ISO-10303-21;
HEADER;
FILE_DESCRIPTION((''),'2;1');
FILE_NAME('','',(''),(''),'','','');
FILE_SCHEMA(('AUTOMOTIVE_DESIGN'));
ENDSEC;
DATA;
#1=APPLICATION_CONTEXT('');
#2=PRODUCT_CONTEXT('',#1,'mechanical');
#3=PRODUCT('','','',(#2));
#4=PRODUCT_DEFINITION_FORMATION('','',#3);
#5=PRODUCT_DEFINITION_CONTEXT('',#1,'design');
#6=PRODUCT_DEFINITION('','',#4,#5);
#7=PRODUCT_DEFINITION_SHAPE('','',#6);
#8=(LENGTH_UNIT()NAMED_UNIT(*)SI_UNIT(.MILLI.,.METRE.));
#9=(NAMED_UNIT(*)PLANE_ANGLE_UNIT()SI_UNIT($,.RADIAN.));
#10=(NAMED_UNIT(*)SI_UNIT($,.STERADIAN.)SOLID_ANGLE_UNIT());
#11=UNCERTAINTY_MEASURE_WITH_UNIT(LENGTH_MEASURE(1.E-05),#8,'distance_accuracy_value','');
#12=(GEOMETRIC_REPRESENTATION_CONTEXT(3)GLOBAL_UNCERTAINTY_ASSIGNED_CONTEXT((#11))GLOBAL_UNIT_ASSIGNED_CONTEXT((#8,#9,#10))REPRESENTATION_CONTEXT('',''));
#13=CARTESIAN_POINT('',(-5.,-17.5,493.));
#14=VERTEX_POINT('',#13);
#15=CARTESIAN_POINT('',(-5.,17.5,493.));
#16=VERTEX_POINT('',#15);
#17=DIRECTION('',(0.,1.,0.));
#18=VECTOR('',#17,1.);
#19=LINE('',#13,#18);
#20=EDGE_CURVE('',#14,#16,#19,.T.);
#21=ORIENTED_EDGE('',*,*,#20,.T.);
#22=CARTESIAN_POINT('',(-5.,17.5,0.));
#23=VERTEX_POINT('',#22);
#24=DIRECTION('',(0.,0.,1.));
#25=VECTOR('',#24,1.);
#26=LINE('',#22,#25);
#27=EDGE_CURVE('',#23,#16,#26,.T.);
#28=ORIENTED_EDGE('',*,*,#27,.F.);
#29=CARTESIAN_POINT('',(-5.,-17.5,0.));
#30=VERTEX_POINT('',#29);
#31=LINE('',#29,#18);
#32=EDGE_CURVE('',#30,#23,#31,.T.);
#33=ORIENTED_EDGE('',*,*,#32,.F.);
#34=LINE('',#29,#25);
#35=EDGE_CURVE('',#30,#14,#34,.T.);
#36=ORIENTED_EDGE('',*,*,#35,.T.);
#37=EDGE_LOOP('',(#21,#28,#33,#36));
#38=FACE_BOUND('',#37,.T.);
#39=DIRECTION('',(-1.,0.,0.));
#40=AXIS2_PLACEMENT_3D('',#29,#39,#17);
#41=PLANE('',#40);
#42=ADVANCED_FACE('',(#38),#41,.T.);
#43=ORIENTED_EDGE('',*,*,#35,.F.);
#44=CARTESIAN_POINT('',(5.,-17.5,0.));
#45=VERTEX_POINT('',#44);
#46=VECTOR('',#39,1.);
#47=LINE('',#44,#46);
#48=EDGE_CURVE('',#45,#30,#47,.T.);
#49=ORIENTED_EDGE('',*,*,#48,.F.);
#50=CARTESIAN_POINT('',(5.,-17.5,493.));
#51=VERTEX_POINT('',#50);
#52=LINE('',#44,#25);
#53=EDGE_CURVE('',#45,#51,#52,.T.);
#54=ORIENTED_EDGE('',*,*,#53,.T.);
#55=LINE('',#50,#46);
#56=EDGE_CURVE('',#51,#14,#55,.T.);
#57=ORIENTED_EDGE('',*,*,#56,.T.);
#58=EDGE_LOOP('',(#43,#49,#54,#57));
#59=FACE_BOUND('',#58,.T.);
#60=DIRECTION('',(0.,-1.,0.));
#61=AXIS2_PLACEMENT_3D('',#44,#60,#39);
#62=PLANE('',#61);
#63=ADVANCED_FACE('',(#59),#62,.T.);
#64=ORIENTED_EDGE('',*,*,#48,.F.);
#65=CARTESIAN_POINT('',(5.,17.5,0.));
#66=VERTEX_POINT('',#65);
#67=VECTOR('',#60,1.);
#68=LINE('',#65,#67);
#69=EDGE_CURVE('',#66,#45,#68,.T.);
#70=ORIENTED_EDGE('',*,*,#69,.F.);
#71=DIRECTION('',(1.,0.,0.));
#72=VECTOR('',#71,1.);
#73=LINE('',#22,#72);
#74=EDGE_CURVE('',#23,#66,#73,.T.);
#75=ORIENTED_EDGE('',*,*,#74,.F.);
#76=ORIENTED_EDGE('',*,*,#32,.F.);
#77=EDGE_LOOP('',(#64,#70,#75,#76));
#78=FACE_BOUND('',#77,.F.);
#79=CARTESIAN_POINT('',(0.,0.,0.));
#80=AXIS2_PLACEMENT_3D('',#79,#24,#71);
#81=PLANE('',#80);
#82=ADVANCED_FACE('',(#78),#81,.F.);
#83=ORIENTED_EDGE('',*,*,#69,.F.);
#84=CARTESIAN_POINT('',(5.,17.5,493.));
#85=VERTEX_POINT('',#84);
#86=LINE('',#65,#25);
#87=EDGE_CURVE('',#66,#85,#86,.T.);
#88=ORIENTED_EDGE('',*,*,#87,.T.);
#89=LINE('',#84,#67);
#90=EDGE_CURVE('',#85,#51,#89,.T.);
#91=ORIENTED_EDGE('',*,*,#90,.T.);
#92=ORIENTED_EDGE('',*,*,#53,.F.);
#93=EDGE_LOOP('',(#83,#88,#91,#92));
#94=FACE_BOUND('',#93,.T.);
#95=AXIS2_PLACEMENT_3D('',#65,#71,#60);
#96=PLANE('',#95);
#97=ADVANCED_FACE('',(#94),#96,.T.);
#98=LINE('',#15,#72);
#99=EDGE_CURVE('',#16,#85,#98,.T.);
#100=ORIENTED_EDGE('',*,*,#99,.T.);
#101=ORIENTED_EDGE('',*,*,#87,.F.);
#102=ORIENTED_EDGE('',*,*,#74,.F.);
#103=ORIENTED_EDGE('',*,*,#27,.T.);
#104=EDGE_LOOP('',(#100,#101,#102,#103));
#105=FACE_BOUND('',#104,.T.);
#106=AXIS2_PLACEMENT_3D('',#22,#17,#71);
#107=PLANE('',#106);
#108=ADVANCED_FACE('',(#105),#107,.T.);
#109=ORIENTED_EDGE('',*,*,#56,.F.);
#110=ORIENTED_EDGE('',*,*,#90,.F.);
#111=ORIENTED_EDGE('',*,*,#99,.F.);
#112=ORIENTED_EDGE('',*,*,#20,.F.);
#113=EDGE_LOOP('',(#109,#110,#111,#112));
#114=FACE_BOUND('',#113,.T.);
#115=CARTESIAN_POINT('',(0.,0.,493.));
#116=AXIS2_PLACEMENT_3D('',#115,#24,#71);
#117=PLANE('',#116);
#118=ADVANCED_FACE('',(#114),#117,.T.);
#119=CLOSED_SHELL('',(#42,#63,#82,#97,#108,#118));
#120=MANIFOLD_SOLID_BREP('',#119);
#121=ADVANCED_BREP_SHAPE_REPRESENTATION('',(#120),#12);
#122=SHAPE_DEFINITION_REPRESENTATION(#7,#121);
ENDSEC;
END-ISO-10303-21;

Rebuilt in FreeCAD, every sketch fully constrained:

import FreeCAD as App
import Part
import Sketcher
from FreeCAD import Vector
Q = App.Units.Quantity

doc = App.newDocument("Part")
params = doc.addObject("Spreadsheet::Sheet", "Params")
for row, (alias, value) in enumerate([
    ("sketch1_width", "10 mm"),
    ("sketch1_height", "35 mm"),
    ("pad1_length", "493 mm"),
], start=1):
    params.set(f"A{row}", alias)
    params.set(f"B{row}", "=" + value)
    params.setAlias(f"B{row}", alias)

body = doc.addObject("PartDesign::Body", "Body")

# Sketch on XY plane
sketch1 = body.newObject("Sketcher::SketchObject", "Sketch")
sketch1.AttachmentSupport = (doc.getObject("XY_Plane"), [""])
sketch1.MapMode = "FlatFace"
sketch1.addGeometry([
    Part.LineSegment(Vector(-5, -17.5, 0), Vector(5, -17.5, 0)),
    Part.LineSegment(Vector(5, -17.5, 0), Vector(5, 17.5, 0)),
    Part.LineSegment(Vector(5, 17.5, 0), Vector(-5, 17.5, 0)),
    Part.LineSegment(Vector(-5, 17.5, 0), Vector(-5, -17.5, 0)),
], False)
sketch1.addConstraint([
    Sketcher.Constraint("Coincident", 0, 2, 1, 1),
    Sketcher.Constraint("Coincident", 1, 2, 2, 1),
    Sketcher.Constraint("Coincident", 2, 2, 3, 1),
    Sketcher.Constraint("Coincident", 3, 2, 0, 1),
    Sketcher.Constraint("Horizontal", 0),
    Sketcher.Constraint("Vertical", 1),
    Sketcher.Constraint("Horizontal", 2),
    Sketcher.Constraint("Vertical", 3),
    Sketcher.Constraint("Symmetric", 0, 2, 2, 2, -1, 1),
    Sketcher.Constraint("DistanceX", 0, 1, 0, 2, Q("10 mm")),
    Sketcher.Constraint("DistanceY", 1, 1, 1, 2, Q("35 mm")),
])
sketch1.setExpression("Constraints[9]", "Params.sketch1_width")
sketch1.setExpression("Constraints[10]", "Params.sketch1_height")
pad1 = body.newObject("PartDesign::Pad", "Pad")
pad1.Profile = sketch1
pad1.setExpression("Length", "Params.pad1_length")

doc.recompute()
